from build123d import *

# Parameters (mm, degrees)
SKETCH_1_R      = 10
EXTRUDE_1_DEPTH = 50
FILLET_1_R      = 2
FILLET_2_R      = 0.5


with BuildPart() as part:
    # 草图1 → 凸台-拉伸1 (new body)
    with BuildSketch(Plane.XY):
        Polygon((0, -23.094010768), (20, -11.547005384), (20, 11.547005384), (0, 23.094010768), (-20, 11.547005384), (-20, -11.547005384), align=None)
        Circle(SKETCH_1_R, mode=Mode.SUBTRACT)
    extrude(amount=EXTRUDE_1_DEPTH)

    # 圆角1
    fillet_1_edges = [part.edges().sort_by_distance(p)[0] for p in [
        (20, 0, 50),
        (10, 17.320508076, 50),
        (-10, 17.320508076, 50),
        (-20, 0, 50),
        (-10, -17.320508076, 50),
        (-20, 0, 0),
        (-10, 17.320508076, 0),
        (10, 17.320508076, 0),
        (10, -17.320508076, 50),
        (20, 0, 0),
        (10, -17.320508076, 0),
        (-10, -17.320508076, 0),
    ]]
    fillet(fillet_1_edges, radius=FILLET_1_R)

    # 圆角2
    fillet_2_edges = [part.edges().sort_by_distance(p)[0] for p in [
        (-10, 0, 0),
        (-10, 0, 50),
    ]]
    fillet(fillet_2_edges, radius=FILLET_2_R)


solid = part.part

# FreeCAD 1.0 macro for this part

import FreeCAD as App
import Part
import Sketcher
Q = App.Units.Quantity


def edges_at(feature, points):
    """Names of the edges that pass closest to the given points."""
    edges = feature.Shape.Edges
    near = lambda p: min(range(len(edges)), key=lambda i: edges[i].distToShape(Part.Vertex(*p))[0])
    return sorted({f"Edge{near(p) + 1}" for p in points})

doc = App.newDocument("Part")
params = doc.addObject("Spreadsheet::Sheet", "Params")
for row, (alias, value) in enumerate([
    ("sketch1_diameter", "20 mm"),
    ("pad1_length", "50 mm"),
    ("fillet_radius", "2 mm"),
    ("fillet2_radius", "0.5 mm"),
], start=1):
    params.set(f"A{row}", alias)
    params.set(f"B{row}", "=" + value)
    params.setAlias(f"B{row}", alias)

body = doc.addObject("PartDesign::Body", "Body")

sketch1 = body.newObject("Sketcher::SketchObject", "Sketch")
sketch1.AttachmentSupport = (doc.getObject("XY_Plane"), [""])
sketch1.MapMode = "FlatFace"
sketch1.addGeometry(Part.LineSegment(App.Vector(0, -23, 0), App.Vector(20, -12, 0)), False)
sketch1.addGeometry(Part.LineSegment(App.Vector(20, -12, 0), App.Vector(20, 12, 0)), False)
sketch1.addGeometry(Part.LineSegment(App.Vector(20, 12, 0), App.Vector(0, 23, 0)), False)
sketch1.addGeometry(Part.LineSegment(App.Vector(0, 23, 0), App.Vector(-20, 12, 0)), False)
sketch1.addGeometry(Part.LineSegment(App.Vector(-20, 12, 0), App.Vector(-20, -12, 0)), False)
sketch1.addGeometry(Part.LineSegment(App.Vector(-20, -12, 0), App.Vector(0, -23, 0)), False)
sketch1.addGeometry(Part.Circle(App.Vector(0, 0, 0), App.Vector(0, 0, 1), 10), False)
sketch1.addConstraint(Sketcher.Constraint("Coincident", 0, 2, 1, 1))
sketch1.addConstraint(Sketcher.Constraint("Coincident", 1, 2, 2, 1))
sketch1.addConstraint(Sketcher.Constraint("Coincident", 2, 2, 3, 1))
sketch1.addConstraint(Sketcher.Constraint("Coincident", 3, 2, 4, 1))
sketch1.addConstraint(Sketcher.Constraint("Coincident", 4, 2, 5, 1))
sketch1.addConstraint(Sketcher.Constraint("Coincident", 5, 2, 0, 1))
sketch1.addConstraint(Sketcher.Constraint("Vertical", 1))
sketch1.addConstraint(Sketcher.Constraint("Vertical", 4))
sketch1.addConstraint(Sketcher.Constraint("Coincident", 6, 3, -1, 1))
sketch1.addConstraint(Sketcher.Constraint("Symmetric", 0, 2, 3, 2, -1, 1))
sketch1.addConstraint(Sketcher.Constraint("Symmetric", 2, 2, 5, 2, -1, 1))
sketch1.addConstraint(Sketcher.Constraint("PointOnObject", 2, 2, -2))
sketch1.addConstraint(Sketcher.Constraint("Parallel", 2, 5))
sketch1.addConstraint(Sketcher.Constraint("Horizontal", 1, 2, 3, 2))
sketch1.addConstraint(Sketcher.Constraint("Diameter", 6, Q("20 mm")))
sketch1.addConstraint(Sketcher.Constraint("Angle", 0, Q("30 deg")))
sketch1.addConstraint(Sketcher.Constraint("DistanceX", -1, 1, 0, 2, Q("20 mm")))
sketch1.addConstraint(Sketcher.Constraint("DistanceY", 1, 1, 1, 2, Q("23.094011 mm")))
sketch1.setExpression("Constraints[14]", "Params.sketch1_diameter")
pad1 = body.newObject("PartDesign::Pad", "Pad")
pad1.Profile = sketch1
pad1.setExpression("Length", "Params.pad1_length")
doc.recompute()

fillet = body.newObject("PartDesign::Fillet", "Fillet")
fillet.Base = (pad1, edges_at(pad1, [
    (20, 0, 50),
    (10, 17.321, 50),
    (-10, 17.321, 50),
    (-20, 0, 50),
    (-10, -17.321, 50),
    (-20, 0, 0),
    (-10, 17.321, 0),
    (10, 17.321, 0),
    (10, -17.321, 50),
    (20, 0, 0),
    (10, -17.321, 0),
    (-10, -17.321, 0),
]))
fillet.setExpression("Radius", "Params.fillet_radius")
doc.recompute()

fillet2 = body.newObject("PartDesign::Fillet", "Fillet001")
fillet2.Base = (fillet, edges_at(fillet, [(-10, 0, 0), (-10, 0, 50)]))
fillet2.setExpression("Radius", "Params.fillet2_radius")

doc.recompute()
